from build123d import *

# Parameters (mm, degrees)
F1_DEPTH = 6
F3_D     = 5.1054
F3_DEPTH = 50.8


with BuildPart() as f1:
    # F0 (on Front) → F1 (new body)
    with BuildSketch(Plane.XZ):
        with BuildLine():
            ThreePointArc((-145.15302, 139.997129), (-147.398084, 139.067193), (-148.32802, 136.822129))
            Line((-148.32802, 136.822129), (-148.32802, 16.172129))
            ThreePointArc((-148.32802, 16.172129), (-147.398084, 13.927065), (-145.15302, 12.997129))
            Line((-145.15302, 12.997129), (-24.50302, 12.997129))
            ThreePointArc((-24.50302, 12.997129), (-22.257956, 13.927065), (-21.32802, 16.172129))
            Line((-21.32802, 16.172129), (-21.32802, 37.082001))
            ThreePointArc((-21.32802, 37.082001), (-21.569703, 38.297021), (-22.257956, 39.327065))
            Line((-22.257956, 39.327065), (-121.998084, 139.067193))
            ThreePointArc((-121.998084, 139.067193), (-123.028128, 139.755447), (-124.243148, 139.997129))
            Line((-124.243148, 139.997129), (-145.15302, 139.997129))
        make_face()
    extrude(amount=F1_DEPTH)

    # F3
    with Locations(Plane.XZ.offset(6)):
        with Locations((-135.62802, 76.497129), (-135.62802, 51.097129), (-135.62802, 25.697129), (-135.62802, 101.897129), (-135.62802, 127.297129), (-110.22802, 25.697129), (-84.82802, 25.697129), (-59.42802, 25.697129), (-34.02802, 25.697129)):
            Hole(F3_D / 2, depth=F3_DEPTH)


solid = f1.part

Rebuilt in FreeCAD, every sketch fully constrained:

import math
import FreeCAD as App
import Part
import Sketcher

V = App.Vector
Q = App.Units.Quantity

doc = App.newDocument("Part")
body = doc.addObject("PartDesign::Body", "Body")

sketch1 = body.newObject("Sketcher::SketchObject", "Sketch")
sketch1.AttachmentSupport = (doc.getObject("XZ_Plane"), [""])
sketch1.MapMode = "FlatFace"
sketch1.addGeometry(Part.ArcOfCircle(Part.Circle(V(-145.2, 136.8, 0), V(0, 0, 1), 3.2), math.radians(90), math.radians(180)), False)
sketch1.addGeometry(Part.LineSegment(V(-148.3, 136.8, 0), V(-148.3, 16.2, 0)), False)
sketch1.addGeometry(Part.ArcOfCircle(Part.Circle(V(-145.2, 16.2, 0), V(0, 0, 1), 3.2), math.radians(-180), math.radians(-90)), False)
sketch1.addGeometry(Part.LineSegment(V(-145.2, 13, 0), V(-24.5, 13, 0)), False)
sketch1.addGeometry(Part.ArcOfCircle(Part.Circle(V(-24.5, 16.2, 0), V(0, 0, 1), 3.2), math.radians(-90), math.radians(0)), False)
sketch1.addGeometry(Part.LineSegment(V(-21.3, 16.2, 0), V(-21.3, 37.1, 0)), False)
sketch1.addGeometry(Part.ArcOfCircle(Part.Circle(V(-24.5, 37.1, 0), V(0, 0, 1), 3.2), math.radians(0), math.radians(45)), False)
sketch1.addGeometry(Part.LineSegment(V(-22.3, 39.3, 0), V(-122, 139.1, 0)), False)
sketch1.addGeometry(Part.ArcOfCircle(Part.Circle(V(-124.2, 136.8, 0), V(0, 0, 1), 3.2), math.radians(45), math.radians(90)), False)
sketch1.addGeometry(Part.LineSegment(V(-124.2, 140, 0), V(-145.2, 140, 0)), False)
sketch1.addConstraint(Sketcher.Constraint("Tangent", 0, 2, 1, 1))
sketch1.addConstraint(Sketcher.Constraint("Tangent", 1, 2, 2, 1))
sketch1.addConstraint(Sketcher.Constraint("Tangent", 2, 2, 3, 1))
sketch1.addConstraint(Sketcher.Constraint("Tangent", 3, 2, 4, 1))
sketch1.addConstraint(Sketcher.Constraint("Tangent", 4, 2, 5, 1))
sketch1.addConstraint(Sketcher.Constraint("Tangent", 5, 2, 6, 1))
sketch1.addConstraint(Sketcher.Constraint("Tangent", 6, 2, 7, 1))
sketch1.addConstraint(Sketcher.Constraint("Tangent", 7, 2, 8, 1))
sketch1.addConstraint(Sketcher.Constraint("Tangent", 8, 2, 9, 1))
sketch1.addConstraint(Sketcher.Constraint("Tangent", 9, 2, 0, 1))
sketch1.addConstraint(Sketcher.Constraint("Vertical", 1))
sketch1.addConstraint(Sketcher.Constraint("Horizontal", 3))
sketch1.addConstraint(Sketcher.Constraint("Vertical", 5))
sketch1.addConstraint(Sketcher.Constraint("Horizontal", 9))
sketch1.addConstraint(Sketcher.Constraint("Equal", 0, 2))
sketch1.addConstraint(Sketcher.Constraint("Equal", 2, 4))
sketch1.addConstraint(Sketcher.Constraint("Equal", 3, 1))
sketch1.addConstraint(Sketcher.Constraint("Equal", 9, 5))
sketch1.addConstraint(Sketcher.Constraint("Angle", 7, Q("135 deg")))
sketch1.addConstraint(Sketcher.Constraint("Radius", 0, Q("0.125 in")))
sketch1.addConstraint(Sketcher.Constraint("Radius", 6, Q("0.1250002 in")))
sketch1.addConstraint(Sketcher.Constraint("DistanceX", 3, 1, 3, 2, Q("4.75 in")))
sketch1.addConstraint(Sketcher.Constraint("DistanceX", 9, 2, 9, 1, Q("20.909872 mm")))
sketch1.addConstraint(Sketcher.Constraint("DistanceY", -1, 1, 6, 3, Q("37.081999 mm")))
sketch1.addConstraint(Sketcher.Constraint("DistanceX", 0, 3, -1, 1, Q("145.15302 mm")))
pad1 = body.newObject("PartDesign::Pad", "Pad")
pad1.Profile = sketch1
pad1.Length = 6

sketch2 = body.newObject("Sketcher::SketchObject", "Sketch001")
sketch2.AttachmentSupport = (doc.getObject("XZ_Plane"), [""])
sketch2.MapMode = "FlatFace"
sketch2.AttachmentOffset = App.Placement(V(0, 0, 6), App.Rotation())
sketch2.addGeometry(Part.Circle(V(-135.6, 76.5, 0), V(0, 0, 1), 2.6), False)
sketch2.addGeometry(Part.Circle(V(-135.6, 51.1, 0), V(0, 0, 1), 2.6), False)
sketch2.addGeometry(Part.Circle(V(-135.6, 25.7, 0), V(0, 0, 1), 2.6), False)
sketch2.addGeometry(Part.Circle(V(-135.6, 101.9, 0), V(0, 0, 1), 2.6), False)
sketch2.addGeometry(Part.Circle(V(-135.6, 127.3, 0), V(0, 0, 1), 2.6), False)
sketch2.addGeometry(Part.Circle(V(-110.2, 25.7, 0), V(0, 0, 1), 2.6), False)
sketch2.addGeometry(Part.Circle(V(-84.8, 25.7, 0), V(0, 0, 1), 2.6), False)
sketch2.addGeometry(Part.Circle(V(-59.4, 25.7, 0), V(0, 0, 1), 2.6), False)
sketch2.addGeometry(Part.Circle(V(-34, 25.7, 0), V(0, 0, 1), 2.6), False)
sketch2.addConstraint(Sketcher.Constraint("Equal", 0, 1))
sketch2.addConstraint(Sketcher.Constraint("Equal", 1, 2))
sketch2.addConstraint(Sketcher.Constraint("Equal", 2, 3))
sketch2.addConstraint(Sketcher.Constraint("Equal", 3, 4))
sketch2.addConstraint(Sketcher.Constraint("Equal", 4, 5))
sketch2.addConstraint(Sketcher.Constraint("Equal", 5, 6))
sketch2.addConstraint(Sketcher.Constraint("Equal", 6, 7))
sketch2.addConstraint(Sketcher.Constraint("Equal", 7, 8))
sketch2.addConstraint(Sketcher.Constraint("Horizontal", 2, 3, 5, 3))
sketch2.addConstraint(Sketcher.Constraint("Horizontal", 5, 3, 6, 3))
sketch2.addConstraint(Sketcher.Constraint("Horizontal", 6, 3, 7, 3))
sketch2.addConstraint(Sketcher.Constraint("Horizontal", 7, 3, 8, 3))
sketch2.addConstraint(Sketcher.Constraint("Vertical", 0, 3, 1, 3))
sketch2.addConstraint(Sketcher.Constraint("Vertical", 1, 3, 2, 3))
sketch2.addConstraint(Sketcher.Constraint("Vertical", 2, 3, 3, 3))
sketch2.addConstraint(Sketcher.Constraint("Vertical", 3, 3, 4, 3))
sketch2.addConstraint(Sketcher.Constraint("Diameter", 0, Q("0.201 in")))
sketch2.addConstraint(Sketcher.Constraint("DistanceY", 1, 3, 0, 3, Q("1 in")))
sketch2.addConstraint(Sketcher.Constraint("DistanceY", 2, 3, 1, 3, Q("1 in")))
sketch2.addConstraint(Sketcher.Constraint("DistanceY", 0, 3, 3, 3, Q("1 in")))
sketch2.addConstraint(Sketcher.Constraint("DistanceY", 3, 3, 4, 3, Q("1 in")))
sketch2.addConstraint(Sketcher.Constraint("DistanceX", 2, 3, 5, 3, Q("1 in")))
sketch2.addConstraint(Sketcher.Constraint("DistanceX", 5, 3, 6, 3, Q("1 in")))
sketch2.addConstraint(Sketcher.Constraint("DistanceX", 6, 3, 7, 3, Q("1 in")))
sketch2.addConstraint(Sketcher.Constraint("DistanceX", 7, 3, 8, 3, Q("1 in")))
sketch2.addConstraint(Sketcher.Constraint("DistanceX", 0, 3, -1, 1, Q("135.62802 mm")))
sketch2.addConstraint(Sketcher.Constraint("DistanceY", -1, 1, 0, 3, Q("76.497129 mm")))
doc.recompute()
hole = body.newObject("PartDesign::Hole", "Hole")
hole.Profile = sketch2
hole.ThreadType = "None"
hole.Diameter = Q("0.201 in")
hole.DepthType = "Dimension"
hole.Depth = Q("2 in")
hole.DrillPoint = "Flat"

doc.recompute()
